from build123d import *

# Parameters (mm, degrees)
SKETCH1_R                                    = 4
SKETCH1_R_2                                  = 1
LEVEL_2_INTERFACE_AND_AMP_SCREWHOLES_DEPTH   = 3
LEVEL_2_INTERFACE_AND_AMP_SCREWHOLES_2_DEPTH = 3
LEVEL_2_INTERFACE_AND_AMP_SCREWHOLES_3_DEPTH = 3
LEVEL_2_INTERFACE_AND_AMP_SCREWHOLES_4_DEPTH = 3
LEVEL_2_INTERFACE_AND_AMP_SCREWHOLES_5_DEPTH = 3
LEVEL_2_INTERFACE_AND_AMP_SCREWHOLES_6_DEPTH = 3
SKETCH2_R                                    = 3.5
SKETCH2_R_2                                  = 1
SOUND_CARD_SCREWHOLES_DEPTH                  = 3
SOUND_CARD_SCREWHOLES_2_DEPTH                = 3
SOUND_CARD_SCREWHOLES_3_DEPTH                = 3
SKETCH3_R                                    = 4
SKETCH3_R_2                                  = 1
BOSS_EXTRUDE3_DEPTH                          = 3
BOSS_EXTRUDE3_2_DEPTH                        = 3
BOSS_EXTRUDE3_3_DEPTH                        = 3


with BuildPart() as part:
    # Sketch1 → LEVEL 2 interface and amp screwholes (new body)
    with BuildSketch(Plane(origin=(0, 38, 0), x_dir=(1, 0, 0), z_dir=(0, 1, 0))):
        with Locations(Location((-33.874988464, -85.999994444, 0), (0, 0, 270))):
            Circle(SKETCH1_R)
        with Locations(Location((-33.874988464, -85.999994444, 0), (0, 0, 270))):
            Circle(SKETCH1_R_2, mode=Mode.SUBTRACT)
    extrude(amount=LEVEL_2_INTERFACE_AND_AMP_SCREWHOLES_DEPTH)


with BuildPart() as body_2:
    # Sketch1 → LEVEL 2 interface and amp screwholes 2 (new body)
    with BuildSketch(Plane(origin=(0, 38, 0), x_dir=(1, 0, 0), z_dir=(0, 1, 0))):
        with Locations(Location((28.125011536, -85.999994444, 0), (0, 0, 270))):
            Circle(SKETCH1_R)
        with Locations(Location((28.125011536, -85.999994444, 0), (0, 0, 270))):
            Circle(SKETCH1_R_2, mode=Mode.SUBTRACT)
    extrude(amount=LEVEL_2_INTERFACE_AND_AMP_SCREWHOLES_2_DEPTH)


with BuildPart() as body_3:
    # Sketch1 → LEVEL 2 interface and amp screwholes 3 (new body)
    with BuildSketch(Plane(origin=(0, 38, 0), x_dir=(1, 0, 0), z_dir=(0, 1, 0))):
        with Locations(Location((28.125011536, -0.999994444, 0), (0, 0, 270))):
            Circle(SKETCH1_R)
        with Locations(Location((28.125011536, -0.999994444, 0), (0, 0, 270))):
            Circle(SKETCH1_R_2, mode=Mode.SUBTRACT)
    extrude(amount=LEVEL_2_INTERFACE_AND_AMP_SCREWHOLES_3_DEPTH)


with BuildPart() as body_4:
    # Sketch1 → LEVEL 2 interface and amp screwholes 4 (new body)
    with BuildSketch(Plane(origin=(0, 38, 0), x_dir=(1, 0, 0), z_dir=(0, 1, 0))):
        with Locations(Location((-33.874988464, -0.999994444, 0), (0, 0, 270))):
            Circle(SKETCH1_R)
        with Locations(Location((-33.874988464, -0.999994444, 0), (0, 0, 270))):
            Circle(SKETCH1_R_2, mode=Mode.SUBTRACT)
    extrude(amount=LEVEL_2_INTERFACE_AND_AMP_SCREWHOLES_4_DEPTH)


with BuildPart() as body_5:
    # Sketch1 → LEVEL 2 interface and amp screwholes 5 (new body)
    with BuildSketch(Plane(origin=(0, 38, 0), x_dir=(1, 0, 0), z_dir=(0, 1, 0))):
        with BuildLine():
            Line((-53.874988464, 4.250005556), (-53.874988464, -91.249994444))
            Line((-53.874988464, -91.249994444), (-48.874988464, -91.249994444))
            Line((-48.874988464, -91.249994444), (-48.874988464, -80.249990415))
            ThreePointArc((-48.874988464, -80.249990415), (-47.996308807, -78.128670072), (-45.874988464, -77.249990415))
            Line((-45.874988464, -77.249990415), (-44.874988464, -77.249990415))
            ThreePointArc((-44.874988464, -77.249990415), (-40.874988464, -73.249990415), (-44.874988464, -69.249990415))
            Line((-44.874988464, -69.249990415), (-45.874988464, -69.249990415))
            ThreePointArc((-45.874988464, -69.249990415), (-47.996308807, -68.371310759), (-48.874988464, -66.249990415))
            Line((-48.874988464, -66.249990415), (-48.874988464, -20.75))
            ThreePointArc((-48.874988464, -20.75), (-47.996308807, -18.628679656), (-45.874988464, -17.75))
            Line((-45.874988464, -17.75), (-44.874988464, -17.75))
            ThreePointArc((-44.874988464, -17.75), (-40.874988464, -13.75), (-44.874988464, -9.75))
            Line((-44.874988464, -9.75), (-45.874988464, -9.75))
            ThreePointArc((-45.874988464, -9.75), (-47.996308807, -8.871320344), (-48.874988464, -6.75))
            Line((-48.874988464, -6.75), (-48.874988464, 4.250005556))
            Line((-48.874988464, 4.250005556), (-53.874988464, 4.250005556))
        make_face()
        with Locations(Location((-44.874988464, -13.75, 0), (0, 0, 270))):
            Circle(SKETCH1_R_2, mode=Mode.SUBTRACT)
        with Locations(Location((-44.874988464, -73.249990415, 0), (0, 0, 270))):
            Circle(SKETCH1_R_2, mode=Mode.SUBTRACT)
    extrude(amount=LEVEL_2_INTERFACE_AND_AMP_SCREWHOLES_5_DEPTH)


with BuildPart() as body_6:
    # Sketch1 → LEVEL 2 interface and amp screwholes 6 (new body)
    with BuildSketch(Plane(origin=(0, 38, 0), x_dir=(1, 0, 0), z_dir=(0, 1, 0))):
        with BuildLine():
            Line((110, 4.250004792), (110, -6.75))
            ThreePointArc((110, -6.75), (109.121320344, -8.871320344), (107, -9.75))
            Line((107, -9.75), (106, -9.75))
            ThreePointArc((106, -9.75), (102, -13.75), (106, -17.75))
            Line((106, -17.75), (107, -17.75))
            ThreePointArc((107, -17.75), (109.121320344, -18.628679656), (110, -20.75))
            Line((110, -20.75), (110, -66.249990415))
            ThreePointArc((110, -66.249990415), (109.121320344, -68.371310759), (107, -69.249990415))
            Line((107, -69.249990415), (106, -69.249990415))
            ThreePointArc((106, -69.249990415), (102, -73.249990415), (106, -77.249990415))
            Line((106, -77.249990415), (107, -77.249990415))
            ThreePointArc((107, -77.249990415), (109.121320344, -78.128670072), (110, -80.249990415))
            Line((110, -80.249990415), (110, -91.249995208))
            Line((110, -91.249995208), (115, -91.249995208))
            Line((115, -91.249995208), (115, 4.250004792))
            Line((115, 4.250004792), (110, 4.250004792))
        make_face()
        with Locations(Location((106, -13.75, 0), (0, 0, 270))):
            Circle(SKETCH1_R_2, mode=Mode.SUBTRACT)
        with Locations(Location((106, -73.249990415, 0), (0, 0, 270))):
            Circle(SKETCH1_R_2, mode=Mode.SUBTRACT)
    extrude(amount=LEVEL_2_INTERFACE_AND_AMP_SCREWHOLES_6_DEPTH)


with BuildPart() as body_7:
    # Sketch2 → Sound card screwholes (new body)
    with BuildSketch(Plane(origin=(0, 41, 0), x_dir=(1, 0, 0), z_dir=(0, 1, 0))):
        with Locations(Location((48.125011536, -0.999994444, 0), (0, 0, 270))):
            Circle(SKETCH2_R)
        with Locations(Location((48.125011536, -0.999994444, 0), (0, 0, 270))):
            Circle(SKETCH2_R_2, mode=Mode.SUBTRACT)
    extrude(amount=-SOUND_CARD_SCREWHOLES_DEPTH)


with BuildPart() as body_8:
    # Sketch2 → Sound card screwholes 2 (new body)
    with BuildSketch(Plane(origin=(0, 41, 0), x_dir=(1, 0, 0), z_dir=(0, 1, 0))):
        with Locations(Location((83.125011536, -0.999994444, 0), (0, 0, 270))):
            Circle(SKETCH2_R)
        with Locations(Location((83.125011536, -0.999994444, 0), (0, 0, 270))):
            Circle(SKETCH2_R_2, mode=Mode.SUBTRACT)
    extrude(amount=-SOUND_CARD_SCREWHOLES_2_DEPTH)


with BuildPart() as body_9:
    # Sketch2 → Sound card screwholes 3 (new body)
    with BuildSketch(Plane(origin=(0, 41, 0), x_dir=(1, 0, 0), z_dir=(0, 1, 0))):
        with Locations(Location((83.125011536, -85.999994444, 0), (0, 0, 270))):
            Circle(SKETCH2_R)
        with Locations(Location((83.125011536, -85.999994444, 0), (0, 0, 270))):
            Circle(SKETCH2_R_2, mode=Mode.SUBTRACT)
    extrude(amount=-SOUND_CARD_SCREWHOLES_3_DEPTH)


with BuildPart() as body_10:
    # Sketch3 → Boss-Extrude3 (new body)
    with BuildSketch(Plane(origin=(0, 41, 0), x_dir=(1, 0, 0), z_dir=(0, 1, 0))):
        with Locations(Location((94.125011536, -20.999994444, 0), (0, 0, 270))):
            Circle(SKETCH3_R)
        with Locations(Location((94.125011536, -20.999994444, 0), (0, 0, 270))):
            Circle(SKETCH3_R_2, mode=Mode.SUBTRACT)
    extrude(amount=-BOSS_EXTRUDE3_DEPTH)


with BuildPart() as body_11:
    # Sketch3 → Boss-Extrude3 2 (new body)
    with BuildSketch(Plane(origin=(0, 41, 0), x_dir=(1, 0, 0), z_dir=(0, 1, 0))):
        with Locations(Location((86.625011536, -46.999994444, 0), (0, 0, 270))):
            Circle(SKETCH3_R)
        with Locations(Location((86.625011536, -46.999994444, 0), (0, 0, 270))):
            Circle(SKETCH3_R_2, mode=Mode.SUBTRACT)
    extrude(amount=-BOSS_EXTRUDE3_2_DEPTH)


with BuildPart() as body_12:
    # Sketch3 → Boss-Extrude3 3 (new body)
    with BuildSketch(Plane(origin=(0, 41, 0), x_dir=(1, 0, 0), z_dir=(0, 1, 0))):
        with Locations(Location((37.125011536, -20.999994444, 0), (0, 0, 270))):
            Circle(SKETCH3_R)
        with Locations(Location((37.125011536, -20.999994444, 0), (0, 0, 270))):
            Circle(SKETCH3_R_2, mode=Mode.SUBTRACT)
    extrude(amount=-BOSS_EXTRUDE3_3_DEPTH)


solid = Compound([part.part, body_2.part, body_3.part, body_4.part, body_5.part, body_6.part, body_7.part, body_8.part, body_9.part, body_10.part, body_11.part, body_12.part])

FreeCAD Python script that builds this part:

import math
import FreeCAD as App
import Part
import Sketcher
from FreeCAD import Vector

doc = App.newDocument("Part")
body = doc.addObject("PartDesign::Body", "Body")

# Sketch on XZ plane
sketch1 = doc.addObject("Sketcher::SketchObject", "Sketch")
body.addObject(sketch1)
sketch1.AttachmentSupport = (doc.XZ_Plane, [""])
sketch1.MapMode = "FlatFace"
sketch1.AttachmentOffset = App.Placement(Vector(0, 0, -38), App.Rotation())
sketch1.addGeometry([
    Part.Circle(Vector(-33.9, 86, 0), Vector(0, 0, 1), 4),
    Part.Circle(Vector(-33.9, 86, 0), Vector(0, 0, 1), 1),
], False)
sketch1.addConstraint([
    Sketcher.Constraint("Coincident", 1, 3, 0, 3),
    Sketcher.Constraint("Diameter", 0, 8.0),
    Sketcher.Constraint("Diameter", 1, 2.0),
    Sketcher.Constraint("DistanceX", 0, 3, -1, 1, 33.874988),
    Sketcher.Constraint("DistanceY", -1, 1, 0, 3, 85.999994),
])
pad1 = doc.addObject("PartDesign::Pad", "Pad")
body.addObject(pad1)
pad1.Profile = sketch1
pad1.Length = 3
pad1.Reversed = True
body2 = doc.addObject("PartDesign::Body", "Body001")

# Sketch on XZ plane
sketch2 = doc.addObject("Sketcher::SketchObject", "Sketch001")
body2.addObject(sketch2)
sketch2.AttachmentSupport = (doc.getObject("XZ_Plane001"), [""])
sketch2.MapMode = "FlatFace"
sketch2.AttachmentOffset = App.Placement(Vector(0, 0, -38), App.Rotation())
sketch2.addGeometry([
    Part.Circle(Vector(28.1, 86, 0), Vector(0, 0, 1), 4),
    Part.Circle(Vector(28.1, 86, 0), Vector(0, 0, 1), 1),
], False)
sketch2.addConstraint([
    Sketcher.Constraint("Coincident", 1, 3, 0, 3),
    Sketcher.Constraint("Diameter", 0, 8.0),
    Sketcher.Constraint("Diameter", 1, 2.0),
    Sketcher.Constraint("DistanceX", -1, 1, 0, 3, 28.125012),
    Sketcher.Constraint("DistanceY", -1, 1, 0, 3, 85.999994),
])
pad2 = doc.addObject("PartDesign::Pad", "Pad001")
body2.addObject(pad2)
pad2.Profile = sketch2
pad2.Length = 3
pad2.Reversed = True
body3 = doc.addObject("PartDesign::Body", "Body002")

# Sketch on XZ plane
sketch3 = doc.addObject("Sketcher::SketchObject", "Sketch002")
body3.addObject(sketch3)
sketch3.AttachmentSupport = (doc.getObject("XZ_Plane002"), [""])
sketch3.MapMode = "FlatFace"
sketch3.AttachmentOffset = App.Placement(Vector(0, 0, -38), App.Rotation())
sketch3.addGeometry([
    Part.Circle(Vector(28.1, 1, 0), Vector(0, 0, 1), 4),
    Part.Circle(Vector(28.1, 1, 0), Vector(0, 0, 1), 1),
], False)
sketch3.addConstraint([
    Sketcher.Constraint("Coincident", 1, 3, 0, 3),
    Sketcher.Constraint("Diameter", 0, 8.0),
    Sketcher.Constraint("Diameter", 1, 2.0),
    Sketcher.Constraint("DistanceX", -1, 1, 0, 3, 28.125012),
    Sketcher.Constraint("DistanceY", -1, 1, 0, 3, 0.999994),
])
pad3 = doc.addObject("PartDesign::Pad", "Pad002")
body3.addObject(pad3)
pad3.Profile = sketch3
pad3.Length = 3
pad3.Reversed = True
body4 = doc.addObject("PartDesign::Body", "Body003")

# Sketch on XZ plane
sketch4 = doc.addObject("Sketcher::SketchObject", "Sketch003")
body4.addObject(sketch4)
sketch4.AttachmentSupport = (doc.getObject("XZ_Plane003"), [""])
sketch4.MapMode = "FlatFace"
sketch4.AttachmentOffset = App.Placement(Vector(0, 0, -38), App.Rotation())
sketch4.addGeometry([
    Part.Circle(Vector(-33.9, 1, 0), Vector(0, 0, 1), 4),
    Part.Circle(Vector(-33.9, 1, 0), Vector(0, 0, 1), 1),
], False)
sketch4.addConstraint([
    Sketcher.Constraint("Coincident", 1, 3, 0, 3),
    Sketcher.Constraint("Diameter", 0, 8.0),
    Sketcher.Constraint("Diameter", 1, 2.0),
    Sketcher.Constraint("DistanceX", 0, 3, -1, 1, 33.874988),
    Sketcher.Constraint("DistanceY", -1, 1, 0, 3, 0.999994),
])
pad4 = doc.addObject("PartDesign::Pad", "Pad003")
body4.addObject(pad4)
pad4.Profile = sketch4
pad4.Length = 3
pad4.Reversed = True
body5 = doc.addObject("PartDesign::Body", "Body004")

# Sketch on XZ plane
sketch5 = doc.addObject("Sketcher::SketchObject", "Sketch004")
body5.addObject(sketch5)
sketch5.AttachmentSupport = (doc.getObject("XZ_Plane004"), [""])
sketch5.MapMode = "FlatFace"
sketch5.AttachmentOffset = App.Placement(Vector(0, 0, -38), App.Rotation())
sketch5.addGeometry([
    Part.LineSegment(Vector(-53.9, -4.3, 0), Vector(-53.9, 91.2, 0)),  # 0
    Part.LineSegment(Vector(-53.9, 91.2, 0), Vector(-48.9, 91.2, 0)),  # 1
    Part.LineSegment(Vector(-48.9, 91.2, 0), Vector(-48.9, 80.2, 0)),  # 2
    Part.ArcOfCircle(Part.Circle(Vector(-45.9, 80.2, 0), Vector(0, 0, 1), 3), math.radians(-180), math.radians(-90)),  # 3
    Part.LineSegment(Vector(-45.9, 77.2, 0), Vector(-44.9, 77.2, 0)),  # 4
    Part.ArcOfCircle(Part.Circle(Vector(-44.9, 73.2, 0), Vector(0, 0, 1), 4), math.radians(-90), math.radians(90)),  # 5
    Part.LineSegment(Vector(-44.9, 69.2, 0), Vector(-45.9, 69.2, 0)),  # 6
    Part.ArcOfCircle(Part.Circle(Vector(-45.9, 66.2, 0), Vector(0, 0, 1), 3), math.radians(90), math.radians(180)),  # 7
    Part.LineSegment(Vector(-48.9, 66.2, 0), Vector(-48.9, 20.8, 0)),  # 8
    Part.ArcOfCircle(Part.Circle(Vector(-45.9, 20.8, 0), Vector(0, 0, 1), 3), math.radians(180), math.radians(270)),  # 9
    Part.LineSegment(Vector(-45.9, 17.8, 0), Vector(-44.9, 17.8, 0)),  # 10
    Part.ArcOfCircle(Part.Circle(Vector(-44.9, 13.8, 0), Vector(0, 0, 1), 4), math.radians(-90), math.radians(90)),  # 11
    Part.LineSegment(Vector(-44.9, 9.8, 0), Vector(-45.9, 9.8, 0)),  # 12
    Part.ArcOfCircle(Part.Circle(Vector(-45.9, 6.8, 0), Vector(0, 0, 1), 3), math.radians(90), math.radians(180)),  # 13
    Part.LineSegment(Vector(-48.9, 6.8, 0), Vector(-48.9, -4.3, 0)),  # 14
    Part.LineSegment(Vector(-48.9, -4.3, 0), Vector(-53.9, -4.3, 0)),  # 15
    Part.Circle(Vector(-44.9, 73.2, 0), Vector(0, 0, 1), 1),  # 16
    Part.Circle(Vector(-44.9, 13.8, 0), Vector(0, 0, 1), 1),  # 17
], False)
sketch5.addConstraint([
    Sketcher.Constraint("Coincident", 0, 2, 1, 1),
    Sketcher.Constraint("Coincident", 1, 2, 2, 1),
    Sketcher.Constraint("Tangent", 2, 2, 3, 1),
    Sketcher.Constraint("Tangent", 3, 2, 4, 1),
    Sketcher.Constraint("Tangent", 4, 2, 5, 2),
    Sketcher.Constraint("Tangent", 5, 1, 6, 1),
    Sketcher.Constraint("Tangent", 6, 2, 7, 1),
    Sketcher.Constraint("Tangent", 7, 2, 8, 1),
    Sketcher.Constraint("Tangent", 8, 2, 9, 1),
    Sketcher.Constraint("Tangent", 9, 2, 10, 1),
    Sketcher.Constraint("Tangent", 10, 2, 11, 2),
    Sketcher.Constraint("Tangent", 11, 1, 12, 1),
    Sketcher.Constraint("Tangent", 12, 2, 13, 1),
    Sketcher.Constraint("Tangent", 13, 2, 14, 1),
    Sketcher.Constraint("Coincident", 14, 2, 15, 1),
    Sketcher.Constraint("Coincident", 15, 2, 0, 1),
    Sketcher.Constraint("Vertical", 0),
    Sketcher.Constraint("Horizontal", 1),
    Sketcher.Constraint("Vertical", 2),
    Sketcher.Constraint("Horizontal", 4),
    Sketcher.Constraint("Horizontal", 6),
    Sketcher.Constraint("Vertical", 8),
    Sketcher.Constraint("Horizontal", 10),
    Sketcher.Constraint("Horizontal", 12),
    Sketcher.Constraint("Vertical", 14),
    Sketcher.Constraint("Horizontal", 15),
    Sketcher.Constraint("Coincident", 16, 3, 5, 3),
    Sketcher.Constraint("Coincident", 17, 3, 11, 3),
    Sketcher.Constraint("Equal", 3, 7),
    Sketcher.Constraint("Equal", 7, 9),
    Sketcher.Constraint("Equal", 5, 11),
    Sketcher.Constraint("Equal", 9, 13),
    Sketcher.Constraint("Equal", 16, 17),
    Sketcher.Constraint("Vertical", 3, 3, 7, 3),
    Sketcher.Constraint("Vertical", 5, 3, 11, 3),
    Sketcher.Constraint("Vertical", 9, 3, 13, 3),
    Sketcher.Constraint("Equal", 2, 14),
    Sketcher.Constraint("Diameter", 16, 2.0),
    Sketcher.Constraint("Radius", 3, 3.0),
    Sketcher.Constraint("Radius", 5, 4.0),
    Sketcher.Constraint("DistanceX", 1, 1, 1, 2, 5.0),
    Sketcher.Constraint("DistanceX", 4, 1, 4, 2, 1.0),
    Sketcher.Constraint("DistanceY", 0, 1, 0, 2, 95.5),
    Sketcher.Constraint("DistanceY", -1, 1, 9, 3, 20.75),
    Sketcher.Constraint("DistanceY", 8, 2, 8, 1, 45.49999),
    Sketcher.Constraint("DistanceX", 3, 3, -1, 1, 45.874988),
])
pad5 = doc.addObject("PartDesign::Pad", "Pad004")
body5.addObject(pad5)
pad5.Profile = sketch5
pad5.Length = 3
pad5.Reversed = True
body6 = doc.addObject("PartDesign::Body", "Body005")

# Sketch on XZ plane
sketch6 = doc.addObject("Sketcher::SketchObject", "Sketch005")
body6.addObject(sketch6)
sketch6.AttachmentSupport = (doc.getObject("XZ_Plane005"), [""])
sketch6.MapMode = "FlatFace"
sketch6.AttachmentOffset = App.Placement(Vector(0, 0, -38), App.Rotation())
sketch6.addGeometry([
    Part.LineSegment(Vector(110, -4.3, 0), Vector(110, 6.8, 0)),  # 0
    Part.ArcOfCircle(Part.Circle(Vector(107, 6.8, 0), Vector(0, 0, 1), 3), math.radians(0), math.radians(90)),  # 1
    Part.LineSegment(Vector(107, 9.8, 0), Vector(106, 9.8, 0)),  # 2
    Part.ArcOfCircle(Part.Circle(Vector(106, 13.8, 0), Vector(0, 0, 1), 4), math.radians(90), math.radians(270)),  # 3
    Part.LineSegment(Vector(106, 17.8, 0), Vector(107, 17.8, 0)),  # 4
    Part.ArcOfCircle(Part.Circle(Vector(107, 20.7, 0), Vector(0, 0, 1), 3), math.radians(-90), math.radians(0)),  # 5
    Part.LineSegment(Vector(110, 20.8, 0), Vector(110, 66.2, 0)),  # 6
    Part.ArcOfCircle(Part.Circle(Vector(107, 66.2, 0), Vector(0, 0, 1), 3), math.radians(0), math.radians(90)),  # 7
    Part.LineSegment(Vector(107, 69.2, 0), Vector(106, 69.2, 0)),  # 8
    Part.ArcOfCircle(Part.Circle(Vector(106, 73.2, 0), Vector(0, 0, 1), 4), math.radians(90), math.radians(270)),  # 9
    Part.LineSegment(Vector(106, 77.2, 0), Vector(107, 77.2, 0)),  # 10
    Part.ArcOfCircle(Part.Circle(Vector(107, 80.2, 0), Vector(0, 0, 1), 3), math.radians(-90), math.radians(0)),  # 11
    Part.LineSegment(Vector(110, 80.2, 0), Vector(110, 91.2, 0)),  # 12
    Part.LineSegment(Vector(110, 91.2, 0), Vector(115, 91.2, 0)),  # 13
    Part.LineSegment(Vector(115, 91.2, 0), Vector(115, -4.3, 0)),  # 14
    Part.LineSegment(Vector(115, -4.3, 0), Vector(110, -4.3, 0)),  # 15
    Part.Circle(Vector(106, 73.2, 0), Vector(0, 0, 1), 1),  # 16
    Part.Circle(Vector(106, 13.8, 0), Vector(0, 0, 1), 1),  # 17
], False)
sketch6.addConstraint([
    Sketcher.Constraint("Tangent", 0, 2, 1, 1),
    Sketcher.Constraint("Tangent", 1, 2, 2, 1),
    Sketcher.Constraint("Tangent", 2, 2, 3, 2),
    Sketcher.Constraint("Tangent", 3, 1, 4, 1),
    Sketcher.Constraint("Tangent", 4, 2, 5, 1),
    Sketcher.Constraint("Tangent", 5, 2, 6, 1),
    Sketcher.Constraint("Tangent", 6, 2, 7, 1),
    Sketcher.Constraint("Tangent", 7, 2, 8, 1),
    Sketcher.Constraint("Tangent", 8, 2, 9, 2),
    Sketcher.Constraint("Tangent", 9, 1, 10, 1),
    Sketcher.Constraint("Tangent", 10, 2, 11, 1),
    Sketcher.Constraint("Tangent", 11, 2, 12, 1),
    Sketcher.Constraint("Coincident", 12, 2, 13, 1),
    Sketcher.Constraint("Coincident", 13, 2, 14, 1),
    Sketcher.Constraint("Coincident", 14, 2, 15, 1),
    Sketcher.Constraint("Coincident", 15, 2, 0, 1),
    Sketcher.Constraint("Vertical", 0),
    Sketcher.Constraint("Horizontal", 2),
    Sketcher.Constraint("Horizontal", 4),
    Sketcher.Constraint("Vertical", 6),
    Sketcher.Constraint("Horizontal", 8),
    Sketcher.Constraint("Horizontal", 10),
    Sketcher.Constraint("Vertical", 12),
    Sketcher.Constraint("Horizontal", 13),
    Sketcher.Constraint("Vertical", 14),
    Sketcher.Constraint("Horizontal", 15),
    Sketcher.Constraint("Coincident", 16, 3, 9, 3),
    Sketcher.Constraint("Coincident", 17, 3, 3, 3),
    Sketcher.Constraint("Equal", 1, 5),
    Sketcher.Constraint("Equal", 5, 7),
    Sketcher.Constraint("Equal", 3, 9),
    Sketcher.Constraint("Equal", 7, 11),
    Sketcher.Constraint("Equal", 16, 17),
    Sketcher.Constraint("Vertical", 1, 3, 5, 3),
    Sketcher.Constraint("Vertical", 3, 3, 9, 3),
    Sketcher.Constraint("Vertical", 7, 3, 11, 3),
    Sketcher.Constraint("Equal", 0, 12),
    Sketcher.Constraint("Diameter", 16, 2.0),
    Sketcher.Constraint("Radius", 1, 3.0),
    Sketcher.Constraint("Radius", 3, 4.0),
    Sketcher.Constraint("DistanceX", 2, 2, 2, 1, 1.0),
    Sketcher.Constraint("DistanceX", 13, 1, 13, 2, 5.0),
    Sketcher.Constraint("DistanceY", 14, 2, 14, 1, 95.5),
    Sketcher.Constraint("DistanceX", -1, 1, 1, 3, 107.0),
    Sketcher.Constraint("DistanceY", -1, 1, 1, 3, 6.75),
    Sketcher.Constraint("DistanceY", 6, 1, 6, 2, 45.49999),
])
pad6 = doc.addObject("PartDesign::Pad", "Pad005")
body6.addObject(pad6)
pad6.Profile = sketch6
pad6.Length = 3
pad6.Reversed = True
body7 = doc.addObject("PartDesign::Body", "Body006")

# Sketch on XZ plane
sketch7 = doc.addObject("Sketcher::SketchObject", "Sketch006")
body7.addObject(sketch7)
sketch7.AttachmentSupport = (doc.getObject("XZ_Plane006"), [""])
sketch7.MapMode = "FlatFace"
sketch7.AttachmentOffset = App.Placement(Vector(0, 0, -41), App.Rotation())
sketch7.addGeometry([
    Part.Circle(Vector(48.1, 1, 0), Vector(0, 0, 1), 3.5),
    Part.Circle(Vector(48.1, 1, 0), Vector(0, 0, 1), 1),
], False)
sketch7.addConstraint([
    Sketcher.Constraint("Coincident", 1, 3, 0, 3),
    Sketcher.Constraint("Diameter", 0, 7.0),
    Sketcher.Constraint("Diameter", 1, 2.0),
    Sketcher.Constraint("DistanceX", -1, 1, 0, 3, 48.125012),
    Sketcher.Constraint("DistanceY", -1, 1, 0, 3, 0.999994),
])
pad7 = doc.addObject("PartDesign::Pad", "Pad006")
body7.addObject(pad7)
pad7.Profile = sketch7
pad7.Length = 3
body8 = doc.addObject("PartDesign::Body", "Body007")

# Sketch on XZ plane
sketch8 = doc.addObject("Sketcher::SketchObject", "Sketch007")
body8.addObject(sketch8)
sketch8.AttachmentSupport = (doc.getObject("XZ_Plane007"), [""])
sketch8.MapMode = "FlatFace"
sketch8.AttachmentOffset = App.Placement(Vector(0, 0, -41), App.Rotation())
sketch8.addGeometry([
    Part.Circle(Vector(83.1, 1, 0), Vector(0, 0, 1), 3.5),
    Part.Circle(Vector(83.1, 1, 0), Vector(0, 0, 1), 1),
], False)
sketch8.addConstraint([
    Sketcher.Constraint("Coincident", 1, 3, 0, 3),
    Sketcher.Constraint("Diameter", 0, 7.0),
    Sketcher.Constraint("Diameter", 1, 2.0),
    Sketcher.Constraint("DistanceX", -1, 1, 0, 3, 83.125012),
    Sketcher.Constraint("DistanceY", -1, 1, 0, 3, 0.999994),
])
pad8 = doc.addObject("PartDesign::Pad", "Pad007")
body8.addObject(pad8)
pad8.Profile = sketch8
pad8.Length = 3
body9 = doc.addObject("PartDesign::Body", "Body008")

# Sketch on XZ plane
sketch9 = doc.addObject("Sketcher::SketchObject", "Sketch008")
body9.addObject(sketch9)
sketch9.AttachmentSupport = (doc.getObject("XZ_Plane008"), [""])
sketch9.MapMode = "FlatFace"
sketch9.AttachmentOffset = App.Placement(Vector(0, 0, -41), App.Rotation())
sketch9.addGeometry([
    Part.Circle(Vector(83.1, 86, 0), Vector(0, 0, 1), 3.5),
    Part.Circle(Vector(83.1, 86, 0), Vector(0, 0, 1), 1),
], False)
sketch9.addConstraint([
    Sketcher.Constraint("Coincident", 1, 3, 0, 3),
    Sketcher.Constraint("Diameter", 0, 7.0),
    Sketcher.Constraint("Diameter", 1, 2.0),
    Sketcher.Constraint("DistanceX", -1, 1, 0, 3, 83.125012),
    Sketcher.Constraint("DistanceY", -1, 1, 0, 3, 85.999994),
])
pad9 = doc.addObject("PartDesign::Pad", "Pad008")
body9.addObject(pad9)
pad9.Profile = sketch9
pad9.Length = 3
body10 = doc.addObject("PartDesign::Body", "Body009")

# Sketch on XZ plane
sketch10 = doc.addObject("Sketcher::SketchObject", "Sketch009")
body10.addObject(sketch10)
sketch10.AttachmentSupport = (doc.getObject("XZ_Plane009"), [""])
sketch10.MapMode = "FlatFace"
sketch10.AttachmentOffset = App.Placement(Vector(0, 0, -41), App.Rotation())
sketch10.addGeometry([
    Part.Circle(Vector(94.1, 21, 0), Vector(0, 0, 1), 4),
    Part.Circle(Vector(94.1, 21, 0), Vector(0, 0, 1), 1),
], False)
sketch10.addConstraint([
    Sketcher.Constraint("Coincident", 1, 3, 0, 3),
    Sketcher.Constraint("Diameter", 0, 8.0),
    Sketcher.Constraint("Diameter", 1, 2.0),
    Sketcher.Constraint("DistanceX", -1, 1, 0, 3, 94.125012),
    Sketcher.Constraint("DistanceY", -1, 1, 0, 3, 20.999994),
])
pad10 = doc.addObject("PartDesign::Pad", "Pad009")
body10.addObject(pad10)
pad10.Profile = sketch10
pad10.Length = 3
body11 = doc.addObject("PartDesign::Body", "Body010")

# Sketch on XZ plane
sketch11 = doc.addObject("Sketcher::SketchObject", "Sketch010")
body11.addObject(sketch11)
sketch11.AttachmentSupport = (doc.getObject("XZ_Plane010"), [""])
sketch11.MapMode = "FlatFace"
sketch11.AttachmentOffset = App.Placement(Vector(0, 0, -41), App.Rotation())
sketch11.addGeometry([
    Part.Circle(Vector(86.6, 47, 0), Vector(0, 0, 1), 4),
    Part.Circle(Vector(86.6, 47, 0), Vector(0, 0, 1), 1),
], False)
sketch11.addConstraint([
    Sketcher.Constraint("Coincident", 1, 3, 0, 3),
    Sketcher.Constraint("Diameter", 0, 8.0),
    Sketcher.Constraint("Diameter", 1, 2.0),
    Sketcher.Constraint("DistanceX", -1, 1, 0, 3, 86.625012),
    Sketcher.Constraint("DistanceY", -1, 1, 0, 3, 46.999994),
])
pad11 = doc.addObject("PartDesign::Pad", "Pad010")
body11.addObject(pad11)
pad11.Profile = sketch11
pad11.Length = 3
body12 = doc.addObject("PartDesign::Body", "Body011")

# Sketch on XZ plane
sketch12 = doc.addObject("Sketcher::SketchObject", "Sketch011")
body12.addObject(sketch12)
sketch12.AttachmentSupport = (doc.getObject("XZ_Plane011"), [""])
sketch12.MapMode = "FlatFace"
sketch12.AttachmentOffset = App.Placement(Vector(0, 0, -41), App.Rotation())
sketch12.addGeometry([
    Part.Circle(Vector(37.1, 21, 0), Vector(0, 0, 1), 4),
    Part.Circle(Vector(37.1, 21, 0), Vector(0, 0, 1), 1),
], False)
sketch12.addConstraint([
    Sketcher.Constraint("Coincident", 1, 3, 0, 3),
    Sketcher.Constraint("Diameter", 0, 8.0),
    Sketcher.Constraint("Diameter", 1, 2.0),
    Sketcher.Constraint("DistanceX", -1, 1, 0, 3, 37.125012),
    Sketcher.Constraint("DistanceY", -1, 1, 0, 3, 20.999994),
])
pad12 = doc.addObject("PartDesign::Pad", "Pad011")
body12.addObject(pad12)
pad12.Profile = sketch12
pad12.Length = 3

doc.recompute()
